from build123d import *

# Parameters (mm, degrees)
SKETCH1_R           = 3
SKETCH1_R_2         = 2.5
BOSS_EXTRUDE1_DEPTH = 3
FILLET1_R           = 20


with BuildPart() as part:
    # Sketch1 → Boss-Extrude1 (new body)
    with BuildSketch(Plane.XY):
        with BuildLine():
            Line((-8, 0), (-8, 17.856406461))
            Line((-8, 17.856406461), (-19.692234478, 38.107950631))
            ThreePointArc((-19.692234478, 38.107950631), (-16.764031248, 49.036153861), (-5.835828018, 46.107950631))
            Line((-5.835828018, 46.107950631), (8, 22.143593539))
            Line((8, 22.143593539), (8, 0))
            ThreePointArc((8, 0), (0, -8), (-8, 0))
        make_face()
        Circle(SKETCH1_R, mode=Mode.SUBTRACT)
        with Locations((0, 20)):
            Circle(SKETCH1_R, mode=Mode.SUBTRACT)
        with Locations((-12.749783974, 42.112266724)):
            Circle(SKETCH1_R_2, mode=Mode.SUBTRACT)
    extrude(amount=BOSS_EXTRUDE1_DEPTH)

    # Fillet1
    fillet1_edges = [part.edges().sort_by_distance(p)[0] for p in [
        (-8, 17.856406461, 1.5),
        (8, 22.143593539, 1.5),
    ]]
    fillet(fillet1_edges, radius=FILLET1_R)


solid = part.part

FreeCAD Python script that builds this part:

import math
import FreeCAD as App
import Part
import Sketcher

V = App.Vector
Q = App.Units.Quantity


def edges_at(feature, points):
    """Names of the edges that pass closest to the given points."""
    edges = feature.Shape.Edges
    near = lambda p: min(range(len(edges)), key=lambda i: edges[i].distToShape(Part.Vertex(*p))[0])
    return sorted({f"Edge{near(p) + 1}" for p in points})

doc = App.newDocument("Part")
params = doc.addObject("Spreadsheet::Sheet", "Params")
for row, (alias, value) in enumerate([
    ("sketch1_diameter", "6 mm"),
    ("sketch1_diameter2", "5 mm"),
    ("sketch1_radius", "8 mm"),
    ("pad1_length", "3 mm"),
    ("fillet_radius", "20 mm"),
], start=1):
    params.set(f"A{row}", alias)
    params.set(f"B{row}", "=" + value)
    params.setAlias(f"B{row}", alias)

body = doc.addObject("PartDesign::Body", "Body")

sketch1 = body.newObject("Sketcher::SketchObject", "Sketch")
sketch1.AttachmentSupport = (doc.getObject("XY_Plane"), [""])
sketch1.MapMode = "FlatFace"
sketch1.addGeometry([
    Part.LineSegment(V(-8, 17.856406, 0), V(-8, 0, 0)),
    Part.ArcOfCircle(Part.Circle(V(0, 0, 0), V(0, 0, 1), 8), math.radians(180), math.radians(360)),
    Part.LineSegment(V(8, 0, 0), V(8, 22.143594, 0)),
    Part.LineSegment(V(8, 22.143594, 0), V(-5.835828, 46.107951, 0)),
    Part.ArcOfCircle(Part.Circle(V(-12.764031, 42.107951, 0), V(0, 0, 1), 8), math.radians(30), math.radians(210)),
    Part.LineSegment(V(-19.692234, 38.107951, 0), V(-8, 17.856406, 0)),
    Part.Circle(V(0, 0, 0), V(0, 0, 1), 3),
    Part.Circle(V(0, 20, 0), V(0, 0, 1), 3),
    Part.Circle(V(-12.749784, 42.112267, 0), V(0, 0, 1), 2.5),
], False)
sketch1.addConstraint([
    Sketcher.Constraint("Tangent", 0, 2, 1, 1),
    Sketcher.Constraint("Tangent", 1, 2, 2, 1),
    Sketcher.Constraint("Coincident", 2, 2, 3, 1),
    Sketcher.Constraint("Tangent", 3, 2, 4, 1),
    Sketcher.Constraint("Tangent", 4, 2, 5, 1),
    Sketcher.Constraint("Coincident", 5, 2, 0, 1),
    Sketcher.Constraint("Vertical", 0),
    Sketcher.Constraint("Vertical", 2),
    Sketcher.Constraint("Coincident", 1, 3, -1, 1),
    Sketcher.Constraint("Coincident", 6, 3, -1, 1),
    Sketcher.Constraint("Equal", 1, 4),
    Sketcher.Constraint("Equal", 6, 7),
    Sketcher.Constraint("PointOnObject", 7, 3, -2),
    Sketcher.Constraint("Parallel", 3, 5),
    Sketcher.Constraint("Diameter", 6, Q("6 mm")),
    Sketcher.Constraint("Diameter", 8, Q("5 mm")),
    Sketcher.Constraint("Radius", 1, Q("8 mm")),
    Sketcher.Constraint("Angle", 3, Q("120 deg")),
    Sketcher.Constraint("DistanceY", -1, 1, 7, 3, Q("20 mm")),
    Sketcher.Constraint("Distance", 5, Q("23.384469 mm")),
    Sketcher.Constraint("DistanceY", 0, 2, 0, 1, Q("17.856406 mm")),
    Sketcher.Constraint("DistanceX", 4, 2, 8, 3, Q("6.942451 mm")),
    Sketcher.Constraint("DistanceY", -1, 1, 8, 3, Q("42.112267 mm")),
])
sketch1.setExpression("Constraints[14]", "Params.sketch1_diameter")
sketch1.setExpression("Constraints[15]", "Params.sketch1_diameter2")
sketch1.setExpression("Constraints[16]", "Params.sketch1_radius")
pad1 = body.newObject("PartDesign::Pad", "Pad")
pad1.Profile = sketch1
pad1.setExpression("Length", "Params.pad1_length")
doc.recompute()

fillet = body.newObject("PartDesign::Fillet", "Fillet")
fillet.Base = (pad1, edges_at(pad1, [(-8, 17.856, 1.5), (8, 22.144, 1.5)]))
fillet.setExpression("Radius", "Params.fillet_radius")

doc.recompute()
